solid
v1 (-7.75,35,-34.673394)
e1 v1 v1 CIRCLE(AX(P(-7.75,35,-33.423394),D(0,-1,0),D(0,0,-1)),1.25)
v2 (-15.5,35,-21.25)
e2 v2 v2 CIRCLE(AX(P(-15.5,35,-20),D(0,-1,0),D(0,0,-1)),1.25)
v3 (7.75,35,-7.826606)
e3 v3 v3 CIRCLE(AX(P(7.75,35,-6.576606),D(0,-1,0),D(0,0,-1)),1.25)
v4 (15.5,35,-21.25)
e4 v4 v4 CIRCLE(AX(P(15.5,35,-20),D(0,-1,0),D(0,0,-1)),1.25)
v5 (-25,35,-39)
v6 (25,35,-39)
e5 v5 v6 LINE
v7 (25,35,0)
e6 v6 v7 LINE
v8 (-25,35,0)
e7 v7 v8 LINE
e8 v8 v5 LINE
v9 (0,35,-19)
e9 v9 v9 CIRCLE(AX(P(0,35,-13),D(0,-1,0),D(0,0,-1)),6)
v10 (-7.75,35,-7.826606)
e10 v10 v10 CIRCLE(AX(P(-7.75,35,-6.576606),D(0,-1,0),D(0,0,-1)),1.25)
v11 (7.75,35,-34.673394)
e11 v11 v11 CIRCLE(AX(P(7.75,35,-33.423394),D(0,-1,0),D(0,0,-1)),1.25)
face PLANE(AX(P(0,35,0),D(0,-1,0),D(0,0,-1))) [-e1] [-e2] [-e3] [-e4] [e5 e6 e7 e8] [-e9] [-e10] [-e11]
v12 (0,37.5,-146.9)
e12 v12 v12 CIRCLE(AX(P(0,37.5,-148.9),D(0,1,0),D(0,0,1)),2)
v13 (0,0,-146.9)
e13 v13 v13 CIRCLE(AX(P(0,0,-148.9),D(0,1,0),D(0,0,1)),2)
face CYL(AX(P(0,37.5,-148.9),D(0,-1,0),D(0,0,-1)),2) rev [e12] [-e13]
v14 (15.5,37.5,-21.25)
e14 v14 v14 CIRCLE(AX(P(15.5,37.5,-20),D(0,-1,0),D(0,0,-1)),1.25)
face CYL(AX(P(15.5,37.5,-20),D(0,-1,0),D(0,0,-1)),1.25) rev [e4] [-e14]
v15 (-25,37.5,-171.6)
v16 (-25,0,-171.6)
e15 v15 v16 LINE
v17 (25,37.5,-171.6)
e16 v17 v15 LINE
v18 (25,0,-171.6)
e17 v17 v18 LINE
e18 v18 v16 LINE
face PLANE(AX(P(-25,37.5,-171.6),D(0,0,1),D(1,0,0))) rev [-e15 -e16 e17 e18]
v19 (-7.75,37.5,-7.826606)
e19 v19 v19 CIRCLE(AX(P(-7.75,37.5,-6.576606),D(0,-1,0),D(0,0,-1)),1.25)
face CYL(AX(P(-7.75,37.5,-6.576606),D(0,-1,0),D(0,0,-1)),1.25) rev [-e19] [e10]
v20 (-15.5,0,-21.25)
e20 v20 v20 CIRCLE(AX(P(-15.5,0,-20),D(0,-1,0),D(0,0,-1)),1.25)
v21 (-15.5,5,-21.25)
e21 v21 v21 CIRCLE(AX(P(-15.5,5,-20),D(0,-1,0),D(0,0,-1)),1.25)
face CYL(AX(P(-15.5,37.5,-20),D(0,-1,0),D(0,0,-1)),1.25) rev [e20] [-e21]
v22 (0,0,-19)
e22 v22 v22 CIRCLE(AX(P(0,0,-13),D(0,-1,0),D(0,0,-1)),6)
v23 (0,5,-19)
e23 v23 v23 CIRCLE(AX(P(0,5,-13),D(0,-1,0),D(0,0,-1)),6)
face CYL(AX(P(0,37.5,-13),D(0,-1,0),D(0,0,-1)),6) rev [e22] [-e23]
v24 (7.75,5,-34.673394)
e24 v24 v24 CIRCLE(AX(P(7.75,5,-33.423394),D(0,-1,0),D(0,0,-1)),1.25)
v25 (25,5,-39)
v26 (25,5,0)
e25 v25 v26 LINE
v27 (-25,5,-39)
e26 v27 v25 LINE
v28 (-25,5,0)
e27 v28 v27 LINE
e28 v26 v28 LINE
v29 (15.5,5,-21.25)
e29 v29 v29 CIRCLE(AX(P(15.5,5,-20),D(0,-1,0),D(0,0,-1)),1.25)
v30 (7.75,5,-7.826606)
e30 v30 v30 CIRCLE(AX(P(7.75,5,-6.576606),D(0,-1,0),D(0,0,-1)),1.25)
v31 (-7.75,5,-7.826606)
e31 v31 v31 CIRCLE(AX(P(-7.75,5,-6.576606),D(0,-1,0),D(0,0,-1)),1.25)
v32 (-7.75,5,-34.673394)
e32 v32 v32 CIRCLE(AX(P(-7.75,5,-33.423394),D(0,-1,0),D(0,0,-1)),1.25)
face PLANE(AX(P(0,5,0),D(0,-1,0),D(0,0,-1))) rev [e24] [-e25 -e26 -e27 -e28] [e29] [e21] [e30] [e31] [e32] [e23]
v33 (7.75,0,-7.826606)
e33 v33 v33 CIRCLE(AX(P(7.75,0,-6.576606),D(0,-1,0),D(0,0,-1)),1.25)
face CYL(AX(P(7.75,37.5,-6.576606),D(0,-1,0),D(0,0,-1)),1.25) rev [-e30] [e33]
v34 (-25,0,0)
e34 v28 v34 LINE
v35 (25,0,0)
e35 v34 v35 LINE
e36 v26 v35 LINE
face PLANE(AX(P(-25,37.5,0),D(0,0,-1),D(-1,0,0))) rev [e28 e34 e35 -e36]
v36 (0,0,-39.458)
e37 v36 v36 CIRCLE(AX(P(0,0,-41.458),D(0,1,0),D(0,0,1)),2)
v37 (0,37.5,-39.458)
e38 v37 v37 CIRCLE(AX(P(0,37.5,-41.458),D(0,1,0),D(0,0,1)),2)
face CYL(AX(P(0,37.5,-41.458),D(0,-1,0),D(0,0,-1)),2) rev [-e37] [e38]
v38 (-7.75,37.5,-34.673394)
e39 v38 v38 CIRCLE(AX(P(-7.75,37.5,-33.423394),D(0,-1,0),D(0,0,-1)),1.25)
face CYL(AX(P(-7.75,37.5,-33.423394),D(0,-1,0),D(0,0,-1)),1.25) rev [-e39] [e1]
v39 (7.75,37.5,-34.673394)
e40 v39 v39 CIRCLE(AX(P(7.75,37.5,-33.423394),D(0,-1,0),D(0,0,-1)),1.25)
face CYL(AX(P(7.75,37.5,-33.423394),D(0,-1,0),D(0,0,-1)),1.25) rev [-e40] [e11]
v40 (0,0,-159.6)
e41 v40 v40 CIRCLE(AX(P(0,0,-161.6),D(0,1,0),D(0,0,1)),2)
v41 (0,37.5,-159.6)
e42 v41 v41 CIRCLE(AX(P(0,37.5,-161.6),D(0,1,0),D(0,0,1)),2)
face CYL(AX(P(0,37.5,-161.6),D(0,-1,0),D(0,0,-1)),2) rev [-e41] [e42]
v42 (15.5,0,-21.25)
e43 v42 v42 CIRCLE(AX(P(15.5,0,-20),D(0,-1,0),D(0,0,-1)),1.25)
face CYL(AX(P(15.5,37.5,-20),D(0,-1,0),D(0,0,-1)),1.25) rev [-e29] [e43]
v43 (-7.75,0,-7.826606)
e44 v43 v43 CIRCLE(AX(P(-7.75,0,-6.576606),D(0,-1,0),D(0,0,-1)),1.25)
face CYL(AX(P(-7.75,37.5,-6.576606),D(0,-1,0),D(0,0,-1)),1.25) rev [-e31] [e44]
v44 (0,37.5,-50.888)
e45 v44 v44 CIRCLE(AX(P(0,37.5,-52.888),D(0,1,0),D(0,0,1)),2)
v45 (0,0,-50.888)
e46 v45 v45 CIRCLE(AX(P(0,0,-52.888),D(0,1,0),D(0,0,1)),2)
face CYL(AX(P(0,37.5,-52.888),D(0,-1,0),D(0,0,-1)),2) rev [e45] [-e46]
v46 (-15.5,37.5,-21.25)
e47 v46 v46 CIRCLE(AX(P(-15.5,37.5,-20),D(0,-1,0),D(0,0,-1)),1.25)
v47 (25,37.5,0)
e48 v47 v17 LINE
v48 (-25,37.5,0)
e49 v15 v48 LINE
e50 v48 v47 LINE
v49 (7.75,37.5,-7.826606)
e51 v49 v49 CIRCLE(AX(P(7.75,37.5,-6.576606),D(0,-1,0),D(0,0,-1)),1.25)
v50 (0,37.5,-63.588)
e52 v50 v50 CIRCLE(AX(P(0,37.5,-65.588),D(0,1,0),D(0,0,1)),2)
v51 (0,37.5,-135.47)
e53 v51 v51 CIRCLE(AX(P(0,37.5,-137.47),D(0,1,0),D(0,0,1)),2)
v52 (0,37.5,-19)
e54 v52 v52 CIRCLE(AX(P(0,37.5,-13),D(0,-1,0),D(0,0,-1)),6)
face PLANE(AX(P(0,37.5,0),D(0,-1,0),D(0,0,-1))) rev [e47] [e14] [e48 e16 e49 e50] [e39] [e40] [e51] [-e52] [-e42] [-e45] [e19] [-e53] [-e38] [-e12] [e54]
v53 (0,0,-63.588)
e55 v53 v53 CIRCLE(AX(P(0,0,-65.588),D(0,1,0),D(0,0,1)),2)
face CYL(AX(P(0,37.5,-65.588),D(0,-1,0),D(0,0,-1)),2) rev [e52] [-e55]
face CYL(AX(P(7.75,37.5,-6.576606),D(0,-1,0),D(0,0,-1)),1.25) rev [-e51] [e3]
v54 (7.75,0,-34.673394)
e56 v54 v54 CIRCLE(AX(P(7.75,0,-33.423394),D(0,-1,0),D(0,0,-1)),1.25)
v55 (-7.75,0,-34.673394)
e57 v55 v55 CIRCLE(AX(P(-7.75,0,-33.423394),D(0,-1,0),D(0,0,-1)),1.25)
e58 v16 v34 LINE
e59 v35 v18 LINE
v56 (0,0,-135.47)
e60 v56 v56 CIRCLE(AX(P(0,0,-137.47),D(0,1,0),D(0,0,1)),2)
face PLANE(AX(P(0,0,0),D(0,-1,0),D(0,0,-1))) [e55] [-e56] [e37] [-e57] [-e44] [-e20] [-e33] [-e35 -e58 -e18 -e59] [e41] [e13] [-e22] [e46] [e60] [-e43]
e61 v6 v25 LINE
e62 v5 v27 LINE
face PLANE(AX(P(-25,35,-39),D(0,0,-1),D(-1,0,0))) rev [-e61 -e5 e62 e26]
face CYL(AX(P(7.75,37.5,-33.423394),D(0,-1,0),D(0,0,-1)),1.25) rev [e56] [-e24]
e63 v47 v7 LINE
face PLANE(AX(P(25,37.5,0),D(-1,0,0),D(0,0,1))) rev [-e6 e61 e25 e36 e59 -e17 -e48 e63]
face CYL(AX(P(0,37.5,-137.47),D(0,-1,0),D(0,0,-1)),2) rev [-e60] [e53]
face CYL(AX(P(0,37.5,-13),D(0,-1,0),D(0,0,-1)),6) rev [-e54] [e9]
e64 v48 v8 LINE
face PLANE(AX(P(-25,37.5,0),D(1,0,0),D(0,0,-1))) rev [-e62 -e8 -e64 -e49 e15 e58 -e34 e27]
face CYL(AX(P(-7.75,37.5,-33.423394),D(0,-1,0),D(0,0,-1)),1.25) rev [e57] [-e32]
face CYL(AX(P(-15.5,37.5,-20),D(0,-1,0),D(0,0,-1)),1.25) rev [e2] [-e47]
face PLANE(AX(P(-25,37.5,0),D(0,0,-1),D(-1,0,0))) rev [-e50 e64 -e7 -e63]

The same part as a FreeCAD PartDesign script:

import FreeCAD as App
import Part
import Sketcher

doc = App.newDocument("Part")
params = doc.addObject("Spreadsheet::Sheet", "Params")
for row, (alias, value) in enumerate([
    ("sketch1_diameter", "4 mm"),
    ("sketch1_width", "50 mm"),
    ("sketch1_height", "171.6 mm"),
    ("pad1_length", "37.5 mm"),
    ("sketch2_diameter", "12 mm"),
    ("sketch2_diameter2", "2.5 mm"),
    ("sketch2_width", "50 mm"),
    ("sketch2_height", "39 mm"),
    ("pocket1_length", "30 mm"),
    ("sketch3_diameter", "12 mm"),
    ("sketch3_diameter2", "2.5 mm"),
], start=1):
    params.set(f"A{row}", alias)
    params.set(f"B{row}", "=" + value)
    params.setAlias(f"B{row}", alias)

body = doc.addObject("PartDesign::Body", "Body")

# Sketch on XZ plane
sketch1 = body.newObject("Sketcher::SketchObject", "Sketch")
sketch1.AttachmentSupport = (doc.getObject("XZ_Plane"), [""])
sketch1.MapMode = "FlatFace"
sketch1.addGeometry([
    Part.LineSegment(App.Vector(-25, -171.6, 0), App.Vector(-25, 0, 0)),  # 0
    Part.LineSegment(App.Vector(-25, 0, 0), App.Vector(25, 0, 0)),  # 1
    Part.LineSegment(App.Vector(25, 0, 0), App.Vector(25, -171.6, 0)),  # 2
    Part.LineSegment(App.Vector(25, -171.6, 0), App.Vector(-25, -171.6, 0)),  # 3
    Part.Circle(App.Vector(0, -41.458, 0), App.Vector(0, 0, 1), 2),  # 4
    Part.Circle(App.Vector(0, -52.888, 0), App.Vector(0, 0, 1), 2),  # 5
    Part.Circle(App.Vector(0, -65.588, 0), App.Vector(0, 0, 1), 2),  # 6
    Part.Circle(App.Vector(0, -137.47, 0), App.Vector(0, 0, 1), 2),  # 7
    Part.Circle(App.Vector(0, -148.9, 0), App.Vector(0, 0, 1), 2),  # 8
    Part.Circle(App.Vector(0, -161.6, 0), App.Vector(0, 0, 1), 2),  # 9
], False)
sketch1.addConstraint([
    Sketcher.Constraint("Coincident", 0, 2, 1, 1),
    Sketcher.Constraint("Coincident", 1, 2, 2, 1),
    Sketcher.Constraint("Coincident", 2, 2, 3, 1),
    Sketcher.Constraint("Coincident", 3, 2, 0, 1),
    Sketcher.Constraint("Vertical", 0),
    Sketcher.Constraint("Horizontal", 1),
    Sketcher.Constraint("Vertical", 2),
    Sketcher.Constraint("Horizontal", 3),
    Sketcher.Constraint("Equal", 4, 5),
    Sketcher.Constraint("Equal", 5, 6),
    Sketcher.Constraint("Equal", 6, 7),
    Sketcher.Constraint("Equal", 7, 8),
    Sketcher.Constraint("Equal", 8, 9),
    Sketcher.Constraint("Symmetric", 0, 2, 1, 2, -1, 1),
    Sketcher.Constraint("PointOnObject", 4, 3, -2),
    Sketcher.Constraint("PointOnObject", 5, 3, -2),
    Sketcher.Constraint("PointOnObject", 6, 3, -2),
    Sketcher.Constraint("PointOnObject", 7, 3, -2),
    Sketcher.Constraint("PointOnObject", 8, 3, -2),
    Sketcher.Constraint("PointOnObject", 9, 3, -2),
    Sketcher.Constraint("Diameter", 4, 4.0),
    Sketcher.Constraint("DistanceX", 1, 1, 1, 2, 50.0),
    Sketcher.Constraint("DistanceY", 0, 1, 0, 2, 171.6),
    Sketcher.Constraint("DistanceY", 2, 2, 9, 3, 10.0),
    Sketcher.Constraint("DistanceY", 8, 3, -1, 1, 148.9),
    Sketcher.Constraint("DistanceY", 6, 3, 5, 3, 12.7),
    Sketcher.Constraint("DistanceY", 7, 3, -1, 1, 137.47),
    Sketcher.Constraint("DistanceY", 5, 3, 4, 3, 11.43),
    Sketcher.Constraint("DistanceY", 4, 3, -1, 1, 41.458),
])
sketch1.setExpression("Constraints[20]", "Params.sketch1_diameter")
sketch1.setExpression("Constraints[21]", "Params.sketch1_width")
sketch1.setExpression("Constraints[22]", "Params.sketch1_height")
pad1 = body.newObject("PartDesign::Pad", "Pad")
pad1.Profile = sketch1
pad1.setExpression("Length", "Params.pad1_length")
pad1.Reversed = True

# Sketch on XZ plane
sketch2 = body.newObject("Sketcher::SketchObject", "Sketch001")
sketch2.AttachmentSupport = (doc.getObject("XZ_Plane"), [""])
sketch2.MapMode = "FlatFace"
sketch2.AttachmentOffset = App.Placement(App.Vector(0, 0, -5), App.Rotation())
sketch2.addGeometry([
    Part.LineSegment(App.Vector(-25, 0, 0), App.Vector(-25, -39, 0)),  # 0
    Part.LineSegment(App.Vector(-25, -39, 0), App.Vector(25, -39, 0)),  # 1
    Part.LineSegment(App.Vector(25, -39, 0), App.Vector(25, 0, 0)),  # 2
    Part.LineSegment(App.Vector(25, 0, 0), App.Vector(-25, 0, 0)),  # 3
    Part.Circle(App.Vector(-7.75, -33.423394, 0), App.Vector(0, 0, 1), 1.25),  # 4
    Part.Circle(App.Vector(-15.5, -20, 0), App.Vector(0, 0, 1), 1.25),  # 5
    Part.Circle(App.Vector(7.75, -33.423394, 0), App.Vector(0, 0, 1), 1.25),  # 6
    Part.Circle(App.Vector(15.5, -20, 0), App.Vector(0, 0, 1), 1.25),  # 7
    Part.Circle(App.Vector(-7.75, -6.576606, 0), App.Vector(0, 0, 1), 1.25),  # 8
    Part.Circle(App.Vector(0, -13, 0), App.Vector(0, 0, 1), 6),  # 9
    Part.Circle(App.Vector(7.75, -6.576606, 0), App.Vector(0, 0, 1), 1.25),  # 10
], False)
sketch2.addConstraint([
    Sketcher.Constraint("Coincident", 0, 2, 1, 1),
    Sketcher.Constraint("Coincident", 1, 2, 2, 1),
    Sketcher.Constraint("Coincident", 2, 2, 3, 1),
    Sketcher.Constraint("Coincident", 3, 2, 0, 1),
    Sketcher.Constraint("Vertical", 0),
    Sketcher.Constraint("Horizontal", 1),
    Sketcher.Constraint("Vertical", 2),
    Sketcher.Constraint("Horizontal", 3),
    Sketcher.Constraint("Equal", 4, 5),
    Sketcher.Constraint("Equal", 5, 6),
    Sketcher.Constraint("Equal", 6, 7),
    Sketcher.Constraint("Equal", 7, 8),
    Sketcher.Constraint("Equal", 8, 10),
    Sketcher.Constraint("Symmetric", 2, 2, 3, 2, -1, 1),
    Sketcher.Constraint("Symmetric", 4, 3, 6, 3, -2),
    Sketcher.Constraint("Symmetric", 5, 3, 7, 3, -2),
    Sketcher.Constraint("Symmetric", 8, 3, 10, 3, -2),
    Sketcher.Constraint("PointOnObject", 9, 3, -2),
    Sketcher.Constraint("Vertical", 4, 3, 8, 3),
    Sketcher.Constraint("Diameter", 9, 12.0),
    Sketcher.Constraint("Diameter", 4, 2.5),
    Sketcher.Constraint("DistanceX", 1, 1, 1, 2, 50.0),
    Sketcher.Constraint("DistanceY", 0, 2, 0, 1, 39.0),
    Sketcher.Constraint("DistanceY", 5, 3, -1, 1, 20.0),
    Sketcher.Constraint("DistanceY", 9, 3, -1, 1, 13.0),
    Sketcher.Constraint("DistanceX", 5, 3, 7, 3, 31.0),
    Sketcher.Constraint("DistanceX", 4, 3, 6, 3, 15.5),
    Sketcher.Constraint("DistanceY", 4, 3, -1, 1, 33.423394),
    Sketcher.Constraint("DistanceY", 8, 3, -1, 1, 6.576606),
])
sketch2.setExpression("Constraints[19]", "Params.sketch2_diameter")
sketch2.setExpression("Constraints[20]", "Params.sketch2_diameter2")
sketch2.setExpression("Constraints[21]", "Params.sketch2_width")
sketch2.setExpression("Constraints[22]", "Params.sketch2_height")
pocket1 = body.newObject("PartDesign::Pocket", "Pocket")
pocket1.Profile = sketch2
pocket1.setExpression("Length", "Params.pocket1_length")

# Sketch on XZ plane
sketch3 = body.newObject("Sketcher::SketchObject", "Sketch002")
sketch3.AttachmentSupport = (doc.getObject("XZ_Plane"), [""])
sketch3.MapMode = "FlatFace"
sketch3.addGeometry([
    Part.Circle(App.Vector(-7.75, -33.423394, 0), App.Vector(0, 0, 1), 1.25),  # 0
    Part.Circle(App.Vector(7.75, -33.423394, 0), App.Vector(0, 0, 1), 1.25),  # 1
    Part.Circle(App.Vector(0, -13, 0), App.Vector(0, 0, 1), 6),  # 2
    Part.Circle(App.Vector(-7.75, -6.576606, 0), App.Vector(0, 0, 1), 1.25),  # 3
    Part.Circle(App.Vector(7.75, -6.576606, 0), App.Vector(0, 0, 1), 1.25),  # 4
    Part.Circle(App.Vector(-15.5, -20, 0), App.Vector(0, 0, 1), 1.25),  # 5
    Part.Circle(App.Vector(15.5, -20, 0), App.Vector(0, 0, 1), 1.25),  # 6
], False)
sketch3.addConstraint([
    Sketcher.Constraint("Equal", 0, 1),
    Sketcher.Constraint("Equal", 1, 3),
    Sketcher.Constraint("Equal", 3, 4),
    Sketcher.Constraint("Equal", 4, 5),
    Sketcher.Constraint("Equal", 5, 6),
    Sketcher.Constraint("Symmetric", 0, 3, 1, 3, -2),
    Sketcher.Constraint("Symmetric", 3, 3, 4, 3, -2),
    Sketcher.Constraint("Symmetric", 5, 3, 6, 3, -2),
    Sketcher.Constraint("PointOnObject", 2, 3, -2),
    Sketcher.Constraint("Vertical", 0, 3, 3, 3),
    Sketcher.Constraint("Diameter", 2, 12.0),
    Sketcher.Constraint("Diameter", 0, 2.5),
    Sketcher.Constraint("DistanceY", 2, 3, -1, 1, 13.0),
    Sketcher.Constraint("DistanceY", 5, 3, -1, 1, 20.0),
    Sketcher.Constraint("DistanceX", 5, 3, -1, 1, 15.5),
    Sketcher.Constraint("DistanceX", 0, 3, 1, 3, 15.5),
    Sketcher.Constraint("DistanceY", 0, 3, -1, 1, 33.423394),
    Sketcher.Constraint("DistanceY", 3, 3, -1, 1, 6.576606),
])
sketch3.setExpression("Constraints[10]", "Params.sketch3_diameter")
sketch3.setExpression("Constraints[11]", "Params.sketch3_diameter2")
pocket2 = body.newObject("PartDesign::Pocket", "Pocket001")
pocket2.Profile = sketch3
pocket2.Type = "ThroughAll"

doc.recompute()
